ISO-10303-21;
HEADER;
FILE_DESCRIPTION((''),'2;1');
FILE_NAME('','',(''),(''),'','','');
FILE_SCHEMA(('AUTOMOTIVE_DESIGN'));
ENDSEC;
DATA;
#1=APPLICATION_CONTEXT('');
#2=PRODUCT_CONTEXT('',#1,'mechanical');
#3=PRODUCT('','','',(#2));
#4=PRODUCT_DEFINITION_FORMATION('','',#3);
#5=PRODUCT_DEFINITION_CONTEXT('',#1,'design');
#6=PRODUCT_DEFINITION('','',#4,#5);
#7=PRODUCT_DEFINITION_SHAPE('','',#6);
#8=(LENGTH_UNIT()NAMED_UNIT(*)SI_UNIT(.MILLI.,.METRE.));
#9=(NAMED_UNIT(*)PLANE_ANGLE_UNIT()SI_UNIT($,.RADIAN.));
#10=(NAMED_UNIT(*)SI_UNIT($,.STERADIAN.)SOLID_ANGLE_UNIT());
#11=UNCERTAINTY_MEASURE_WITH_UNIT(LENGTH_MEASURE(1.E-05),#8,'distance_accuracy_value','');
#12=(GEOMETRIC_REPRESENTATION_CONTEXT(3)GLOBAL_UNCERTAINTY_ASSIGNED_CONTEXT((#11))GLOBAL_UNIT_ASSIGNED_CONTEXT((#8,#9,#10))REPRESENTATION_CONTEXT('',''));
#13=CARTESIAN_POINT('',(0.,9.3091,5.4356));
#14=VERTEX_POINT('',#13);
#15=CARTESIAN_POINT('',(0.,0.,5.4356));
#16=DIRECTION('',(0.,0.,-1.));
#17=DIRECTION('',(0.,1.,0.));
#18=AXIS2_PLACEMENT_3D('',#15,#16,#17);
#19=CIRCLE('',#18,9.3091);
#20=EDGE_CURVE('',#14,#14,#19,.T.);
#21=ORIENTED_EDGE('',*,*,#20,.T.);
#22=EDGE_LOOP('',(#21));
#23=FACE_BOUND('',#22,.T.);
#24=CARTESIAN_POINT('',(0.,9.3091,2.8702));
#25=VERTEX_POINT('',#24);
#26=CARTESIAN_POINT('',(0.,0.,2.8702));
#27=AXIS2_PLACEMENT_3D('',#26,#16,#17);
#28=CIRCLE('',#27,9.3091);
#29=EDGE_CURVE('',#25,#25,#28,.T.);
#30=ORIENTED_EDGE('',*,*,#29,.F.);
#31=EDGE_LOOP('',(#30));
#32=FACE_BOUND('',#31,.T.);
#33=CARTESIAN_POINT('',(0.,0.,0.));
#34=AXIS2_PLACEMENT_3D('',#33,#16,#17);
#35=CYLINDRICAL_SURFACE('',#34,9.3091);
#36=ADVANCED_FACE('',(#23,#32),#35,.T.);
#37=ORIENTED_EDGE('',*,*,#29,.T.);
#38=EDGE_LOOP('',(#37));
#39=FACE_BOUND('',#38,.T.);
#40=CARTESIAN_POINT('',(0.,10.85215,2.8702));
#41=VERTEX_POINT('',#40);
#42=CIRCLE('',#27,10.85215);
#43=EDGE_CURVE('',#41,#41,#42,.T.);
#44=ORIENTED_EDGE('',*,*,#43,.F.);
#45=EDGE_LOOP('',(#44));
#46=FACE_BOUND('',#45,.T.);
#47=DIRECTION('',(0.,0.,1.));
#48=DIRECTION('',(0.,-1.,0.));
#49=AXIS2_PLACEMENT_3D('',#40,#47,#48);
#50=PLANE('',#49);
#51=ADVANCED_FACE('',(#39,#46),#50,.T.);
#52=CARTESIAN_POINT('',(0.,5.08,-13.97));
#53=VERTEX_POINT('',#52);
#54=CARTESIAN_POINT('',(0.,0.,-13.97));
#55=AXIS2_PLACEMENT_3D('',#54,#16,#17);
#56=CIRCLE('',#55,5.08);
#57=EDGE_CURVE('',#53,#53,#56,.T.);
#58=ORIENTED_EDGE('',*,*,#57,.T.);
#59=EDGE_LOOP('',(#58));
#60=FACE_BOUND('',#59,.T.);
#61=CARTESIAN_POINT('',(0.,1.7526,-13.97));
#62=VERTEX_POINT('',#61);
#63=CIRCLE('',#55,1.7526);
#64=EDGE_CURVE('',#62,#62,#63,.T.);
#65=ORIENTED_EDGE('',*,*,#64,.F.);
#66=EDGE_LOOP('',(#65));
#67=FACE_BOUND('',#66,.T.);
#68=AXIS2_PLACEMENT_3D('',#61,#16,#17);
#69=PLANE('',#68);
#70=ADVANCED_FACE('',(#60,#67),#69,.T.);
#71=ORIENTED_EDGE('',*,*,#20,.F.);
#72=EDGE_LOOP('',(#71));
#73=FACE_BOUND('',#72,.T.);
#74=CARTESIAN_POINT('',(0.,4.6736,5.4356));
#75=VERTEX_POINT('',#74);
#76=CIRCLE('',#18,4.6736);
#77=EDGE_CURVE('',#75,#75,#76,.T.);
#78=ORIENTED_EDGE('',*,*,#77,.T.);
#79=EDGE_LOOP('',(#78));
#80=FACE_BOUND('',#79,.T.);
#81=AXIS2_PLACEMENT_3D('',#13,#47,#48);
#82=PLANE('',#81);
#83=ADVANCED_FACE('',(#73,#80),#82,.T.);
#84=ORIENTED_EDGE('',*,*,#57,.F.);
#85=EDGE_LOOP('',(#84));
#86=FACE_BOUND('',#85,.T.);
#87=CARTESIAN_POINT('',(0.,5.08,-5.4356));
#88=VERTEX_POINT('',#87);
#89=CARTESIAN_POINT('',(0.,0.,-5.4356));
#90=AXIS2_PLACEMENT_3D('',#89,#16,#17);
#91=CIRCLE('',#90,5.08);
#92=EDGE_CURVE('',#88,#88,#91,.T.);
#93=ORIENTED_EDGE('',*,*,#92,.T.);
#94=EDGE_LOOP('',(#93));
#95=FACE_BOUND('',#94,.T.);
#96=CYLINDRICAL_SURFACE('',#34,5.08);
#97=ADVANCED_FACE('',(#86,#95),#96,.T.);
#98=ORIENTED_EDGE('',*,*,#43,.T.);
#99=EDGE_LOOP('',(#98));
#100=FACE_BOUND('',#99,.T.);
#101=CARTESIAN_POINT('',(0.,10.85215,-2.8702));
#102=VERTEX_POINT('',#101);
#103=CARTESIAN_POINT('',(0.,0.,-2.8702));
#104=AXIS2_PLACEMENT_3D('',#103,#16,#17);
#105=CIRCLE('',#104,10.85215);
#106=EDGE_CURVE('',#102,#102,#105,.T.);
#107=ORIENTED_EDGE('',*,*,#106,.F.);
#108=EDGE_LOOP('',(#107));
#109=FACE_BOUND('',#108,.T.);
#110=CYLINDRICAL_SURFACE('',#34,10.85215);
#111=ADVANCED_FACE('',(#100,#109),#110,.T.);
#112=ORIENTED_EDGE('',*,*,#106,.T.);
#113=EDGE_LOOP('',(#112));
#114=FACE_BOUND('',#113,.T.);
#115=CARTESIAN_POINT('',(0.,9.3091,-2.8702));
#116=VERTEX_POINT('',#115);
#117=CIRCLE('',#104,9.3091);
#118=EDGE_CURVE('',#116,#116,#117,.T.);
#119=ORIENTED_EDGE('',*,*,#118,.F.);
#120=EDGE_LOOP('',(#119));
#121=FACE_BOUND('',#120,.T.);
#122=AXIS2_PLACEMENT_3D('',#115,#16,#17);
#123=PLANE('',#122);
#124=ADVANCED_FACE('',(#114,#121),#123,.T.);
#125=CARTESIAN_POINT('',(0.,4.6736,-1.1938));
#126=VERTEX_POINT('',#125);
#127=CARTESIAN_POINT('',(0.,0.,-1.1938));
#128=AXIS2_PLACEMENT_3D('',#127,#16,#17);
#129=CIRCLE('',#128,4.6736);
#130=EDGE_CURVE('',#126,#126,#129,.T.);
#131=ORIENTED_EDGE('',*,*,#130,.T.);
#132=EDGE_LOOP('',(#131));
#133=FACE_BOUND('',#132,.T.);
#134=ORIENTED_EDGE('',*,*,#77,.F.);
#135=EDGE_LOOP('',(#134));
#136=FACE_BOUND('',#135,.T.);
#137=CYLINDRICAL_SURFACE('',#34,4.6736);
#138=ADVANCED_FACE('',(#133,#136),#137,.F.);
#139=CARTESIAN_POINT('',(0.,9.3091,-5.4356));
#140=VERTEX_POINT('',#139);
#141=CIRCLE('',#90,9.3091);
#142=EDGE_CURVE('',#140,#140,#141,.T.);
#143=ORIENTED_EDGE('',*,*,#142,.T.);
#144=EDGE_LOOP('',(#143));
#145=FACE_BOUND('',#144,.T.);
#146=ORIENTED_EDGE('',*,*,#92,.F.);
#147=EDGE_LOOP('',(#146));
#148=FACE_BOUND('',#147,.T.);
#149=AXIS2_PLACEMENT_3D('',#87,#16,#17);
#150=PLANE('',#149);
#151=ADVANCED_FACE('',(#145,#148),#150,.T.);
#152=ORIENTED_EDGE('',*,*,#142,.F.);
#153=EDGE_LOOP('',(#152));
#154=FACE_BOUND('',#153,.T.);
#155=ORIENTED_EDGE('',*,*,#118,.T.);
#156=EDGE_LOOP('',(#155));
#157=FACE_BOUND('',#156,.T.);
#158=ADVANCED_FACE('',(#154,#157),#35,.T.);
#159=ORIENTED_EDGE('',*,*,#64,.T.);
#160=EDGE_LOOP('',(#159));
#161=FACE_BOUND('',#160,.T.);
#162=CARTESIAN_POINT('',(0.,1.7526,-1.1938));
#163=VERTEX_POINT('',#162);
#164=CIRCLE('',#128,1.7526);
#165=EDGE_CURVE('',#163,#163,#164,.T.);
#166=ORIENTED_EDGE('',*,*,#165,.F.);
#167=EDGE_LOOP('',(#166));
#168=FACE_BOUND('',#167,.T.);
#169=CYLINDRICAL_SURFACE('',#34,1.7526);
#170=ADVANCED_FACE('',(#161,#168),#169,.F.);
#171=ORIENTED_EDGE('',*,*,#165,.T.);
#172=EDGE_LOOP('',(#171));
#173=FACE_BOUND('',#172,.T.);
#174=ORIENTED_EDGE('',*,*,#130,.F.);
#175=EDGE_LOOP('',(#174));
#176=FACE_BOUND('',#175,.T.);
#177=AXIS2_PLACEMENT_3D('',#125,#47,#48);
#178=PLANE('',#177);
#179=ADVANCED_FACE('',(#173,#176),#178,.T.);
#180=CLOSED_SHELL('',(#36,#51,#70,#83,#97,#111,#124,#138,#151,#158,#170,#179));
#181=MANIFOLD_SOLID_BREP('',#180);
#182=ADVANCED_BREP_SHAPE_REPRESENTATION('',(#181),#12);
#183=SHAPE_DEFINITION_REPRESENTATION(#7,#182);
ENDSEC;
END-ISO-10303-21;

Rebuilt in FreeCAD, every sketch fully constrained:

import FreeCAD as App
import Part
import Sketcher
from FreeCAD import Vector
Q = App.Units.Quantity

doc = App.newDocument("Part")
body = doc.addObject("PartDesign::Body", "Body")

# Sketch on YZ plane
sketch1 = body.newObject("Sketcher::SketchObject", "Sketch")
sketch1.AttachmentSupport = (doc.getObject("YZ_Plane"), [""])
sketch1.MapMode = "FlatFace"
sketch1.addGeometry(Part.LineSegment(Vector(4.6736, 5.4356, 0), Vector(4.6736, -1.1938, 0)), False)
sketch1.addGeometry(Part.LineSegment(Vector(4.6736, -1.1938, 0), Vector(1.7526, -1.1938, 0)), False)
sketch1.addGeometry(Part.LineSegment(Vector(1.7526, -1.1938, 0), Vector(1.7526, -13.97, 0)), False)
sketch1.addGeometry(Part.LineSegment(Vector(1.7526, -13.97, 0), Vector(5.08, -13.97, 0)), False)
sketch1.addGeometry(Part.LineSegment(Vector(5.08, -13.97, 0), Vector(5.08, -5.4356, 0)), False)
sketch1.addGeometry(Part.LineSegment(Vector(5.08, -5.4356, 0), Vector(9.3091, -5.4356, 0)), False)
sketch1.addGeometry(Part.LineSegment(Vector(9.3091, -5.4356, 0), Vector(9.3091, -2.8702, 0)), False)
sketch1.addGeometry(Part.LineSegment(Vector(9.3091, -2.8702, 0), Vector(10.85215, -2.8702, 0)), False)
sketch1.addGeometry(Part.LineSegment(Vector(10.85215, -2.8702, 0), Vector(10.85215, 2.8702, 0)), False)
sketch1.addGeometry(Part.LineSegment(Vector(10.85215, 2.8702, 0), Vector(9.3091, 2.8702, 0)), False)
sketch1.addGeometry(Part.LineSegment(Vector(9.3091, 2.8702, 0), Vector(9.3091, 5.4356, 0)), False)
sketch1.addGeometry(Part.LineSegment(Vector(9.3091, 5.4356, 0), Vector(4.6736, 5.4356, 0)), False)
sketch1.addConstraint(Sketcher.Constraint("Coincident", 0, 2, 1, 1))
sketch1.addConstraint(Sketcher.Constraint("Coincident", 1, 2, 2, 1))
sketch1.addConstraint(Sketcher.Constraint("Coincident", 2, 2, 3, 1))
sketch1.addConstraint(Sketcher.Constraint("Coincident", 3, 2, 4, 1))
sketch1.addConstraint(Sketcher.Constraint("Coincident", 4, 2, 5, 1))
sketch1.addConstraint(Sketcher.Constraint("Coincident", 5, 2, 6, 1))
sketch1.addConstraint(Sketcher.Constraint("Coincident", 6, 2, 7, 1))
sketch1.addConstraint(Sketcher.Constraint("Coincident", 7, 2, 8, 1))
sketch1.addConstraint(Sketcher.Constraint("Coincident", 8, 2, 9, 1))
sketch1.addConstraint(Sketcher.Constraint("Coincident", 9, 2, 10, 1))
sketch1.addConstraint(Sketcher.Constraint("Coincident", 10, 2, 11, 1))
sketch1.addConstraint(Sketcher.Constraint("Coincident", 11, 2, 0, 1))
sketch1.addConstraint(Sketcher.Constraint("Vertical", 0))
sketch1.addConstraint(Sketcher.Constraint("Horizontal", 1))
sketch1.addConstraint(Sketcher.Constraint("Vertical", 2))
sketch1.addConstraint(Sketcher.Constraint("Horizontal", 3))
sketch1.addConstraint(Sketcher.Constraint("Vertical", 4))
sketch1.addConstraint(Sketcher.Constraint("Horizontal", 5))
sketch1.addConstraint(Sketcher.Constraint("Vertical", 6))
sketch1.addConstraint(Sketcher.Constraint("Horizontal", 7))
sketch1.addConstraint(Sketcher.Constraint("Vertical", 8))
sketch1.addConstraint(Sketcher.Constraint("Horizontal", 9))
sketch1.addConstraint(Sketcher.Constraint("Vertical", 10))
sketch1.addConstraint(Sketcher.Constraint("Horizontal", 11))
sketch1.addConstraint(Sketcher.Constraint("Symmetric", 6, 2, 9, 2, -1))
sketch1.addConstraint(Sketcher.Constraint("Equal", 6, 10))
sketch1.addConstraint(Sketcher.Constraint("DistanceX", -1, 1, 3, 2, Q("0.2 in")))
sketch1.addConstraint(Sketcher.Constraint("DistanceX", 1, 2, 1, 1, Q("0.115 in")))
sketch1.addConstraint(Sketcher.Constraint("DistanceX", 3, 1, 3, 2, Q("0.131 in")))
sketch1.addConstraint(Sketcher.Constraint("DistanceY", 0, 2, 0, 1, Q("0.261 in")))
sketch1.addConstraint(Sketcher.Constraint("DistanceY", 2, 2, 2, 1, Q("0.503 in")))
sketch1.addConstraint(Sketcher.Constraint("DistanceY", 4, 1, 4, 2, Q("0.336 in")))
sketch1.addConstraint(Sketcher.Constraint("DistanceY", 6, 1, 6, 2, Q("0.101 in")))
sketch1.addConstraint(Sketcher.Constraint("DistanceX", 5, 1, 5, 2, Q("0.1665 in")))
sketch1.addConstraint(Sketcher.Constraint("DistanceX", 7, 1, 7, 2, Q("1.54305 mm")))
revolution = body.newObject("PartDesign::Revolution", "Revolution")
revolution.Profile = sketch1
revolution.ReferenceAxis = (sketch1, ["V_Axis"])
revolution.Angle = 360

doc.recompute()
